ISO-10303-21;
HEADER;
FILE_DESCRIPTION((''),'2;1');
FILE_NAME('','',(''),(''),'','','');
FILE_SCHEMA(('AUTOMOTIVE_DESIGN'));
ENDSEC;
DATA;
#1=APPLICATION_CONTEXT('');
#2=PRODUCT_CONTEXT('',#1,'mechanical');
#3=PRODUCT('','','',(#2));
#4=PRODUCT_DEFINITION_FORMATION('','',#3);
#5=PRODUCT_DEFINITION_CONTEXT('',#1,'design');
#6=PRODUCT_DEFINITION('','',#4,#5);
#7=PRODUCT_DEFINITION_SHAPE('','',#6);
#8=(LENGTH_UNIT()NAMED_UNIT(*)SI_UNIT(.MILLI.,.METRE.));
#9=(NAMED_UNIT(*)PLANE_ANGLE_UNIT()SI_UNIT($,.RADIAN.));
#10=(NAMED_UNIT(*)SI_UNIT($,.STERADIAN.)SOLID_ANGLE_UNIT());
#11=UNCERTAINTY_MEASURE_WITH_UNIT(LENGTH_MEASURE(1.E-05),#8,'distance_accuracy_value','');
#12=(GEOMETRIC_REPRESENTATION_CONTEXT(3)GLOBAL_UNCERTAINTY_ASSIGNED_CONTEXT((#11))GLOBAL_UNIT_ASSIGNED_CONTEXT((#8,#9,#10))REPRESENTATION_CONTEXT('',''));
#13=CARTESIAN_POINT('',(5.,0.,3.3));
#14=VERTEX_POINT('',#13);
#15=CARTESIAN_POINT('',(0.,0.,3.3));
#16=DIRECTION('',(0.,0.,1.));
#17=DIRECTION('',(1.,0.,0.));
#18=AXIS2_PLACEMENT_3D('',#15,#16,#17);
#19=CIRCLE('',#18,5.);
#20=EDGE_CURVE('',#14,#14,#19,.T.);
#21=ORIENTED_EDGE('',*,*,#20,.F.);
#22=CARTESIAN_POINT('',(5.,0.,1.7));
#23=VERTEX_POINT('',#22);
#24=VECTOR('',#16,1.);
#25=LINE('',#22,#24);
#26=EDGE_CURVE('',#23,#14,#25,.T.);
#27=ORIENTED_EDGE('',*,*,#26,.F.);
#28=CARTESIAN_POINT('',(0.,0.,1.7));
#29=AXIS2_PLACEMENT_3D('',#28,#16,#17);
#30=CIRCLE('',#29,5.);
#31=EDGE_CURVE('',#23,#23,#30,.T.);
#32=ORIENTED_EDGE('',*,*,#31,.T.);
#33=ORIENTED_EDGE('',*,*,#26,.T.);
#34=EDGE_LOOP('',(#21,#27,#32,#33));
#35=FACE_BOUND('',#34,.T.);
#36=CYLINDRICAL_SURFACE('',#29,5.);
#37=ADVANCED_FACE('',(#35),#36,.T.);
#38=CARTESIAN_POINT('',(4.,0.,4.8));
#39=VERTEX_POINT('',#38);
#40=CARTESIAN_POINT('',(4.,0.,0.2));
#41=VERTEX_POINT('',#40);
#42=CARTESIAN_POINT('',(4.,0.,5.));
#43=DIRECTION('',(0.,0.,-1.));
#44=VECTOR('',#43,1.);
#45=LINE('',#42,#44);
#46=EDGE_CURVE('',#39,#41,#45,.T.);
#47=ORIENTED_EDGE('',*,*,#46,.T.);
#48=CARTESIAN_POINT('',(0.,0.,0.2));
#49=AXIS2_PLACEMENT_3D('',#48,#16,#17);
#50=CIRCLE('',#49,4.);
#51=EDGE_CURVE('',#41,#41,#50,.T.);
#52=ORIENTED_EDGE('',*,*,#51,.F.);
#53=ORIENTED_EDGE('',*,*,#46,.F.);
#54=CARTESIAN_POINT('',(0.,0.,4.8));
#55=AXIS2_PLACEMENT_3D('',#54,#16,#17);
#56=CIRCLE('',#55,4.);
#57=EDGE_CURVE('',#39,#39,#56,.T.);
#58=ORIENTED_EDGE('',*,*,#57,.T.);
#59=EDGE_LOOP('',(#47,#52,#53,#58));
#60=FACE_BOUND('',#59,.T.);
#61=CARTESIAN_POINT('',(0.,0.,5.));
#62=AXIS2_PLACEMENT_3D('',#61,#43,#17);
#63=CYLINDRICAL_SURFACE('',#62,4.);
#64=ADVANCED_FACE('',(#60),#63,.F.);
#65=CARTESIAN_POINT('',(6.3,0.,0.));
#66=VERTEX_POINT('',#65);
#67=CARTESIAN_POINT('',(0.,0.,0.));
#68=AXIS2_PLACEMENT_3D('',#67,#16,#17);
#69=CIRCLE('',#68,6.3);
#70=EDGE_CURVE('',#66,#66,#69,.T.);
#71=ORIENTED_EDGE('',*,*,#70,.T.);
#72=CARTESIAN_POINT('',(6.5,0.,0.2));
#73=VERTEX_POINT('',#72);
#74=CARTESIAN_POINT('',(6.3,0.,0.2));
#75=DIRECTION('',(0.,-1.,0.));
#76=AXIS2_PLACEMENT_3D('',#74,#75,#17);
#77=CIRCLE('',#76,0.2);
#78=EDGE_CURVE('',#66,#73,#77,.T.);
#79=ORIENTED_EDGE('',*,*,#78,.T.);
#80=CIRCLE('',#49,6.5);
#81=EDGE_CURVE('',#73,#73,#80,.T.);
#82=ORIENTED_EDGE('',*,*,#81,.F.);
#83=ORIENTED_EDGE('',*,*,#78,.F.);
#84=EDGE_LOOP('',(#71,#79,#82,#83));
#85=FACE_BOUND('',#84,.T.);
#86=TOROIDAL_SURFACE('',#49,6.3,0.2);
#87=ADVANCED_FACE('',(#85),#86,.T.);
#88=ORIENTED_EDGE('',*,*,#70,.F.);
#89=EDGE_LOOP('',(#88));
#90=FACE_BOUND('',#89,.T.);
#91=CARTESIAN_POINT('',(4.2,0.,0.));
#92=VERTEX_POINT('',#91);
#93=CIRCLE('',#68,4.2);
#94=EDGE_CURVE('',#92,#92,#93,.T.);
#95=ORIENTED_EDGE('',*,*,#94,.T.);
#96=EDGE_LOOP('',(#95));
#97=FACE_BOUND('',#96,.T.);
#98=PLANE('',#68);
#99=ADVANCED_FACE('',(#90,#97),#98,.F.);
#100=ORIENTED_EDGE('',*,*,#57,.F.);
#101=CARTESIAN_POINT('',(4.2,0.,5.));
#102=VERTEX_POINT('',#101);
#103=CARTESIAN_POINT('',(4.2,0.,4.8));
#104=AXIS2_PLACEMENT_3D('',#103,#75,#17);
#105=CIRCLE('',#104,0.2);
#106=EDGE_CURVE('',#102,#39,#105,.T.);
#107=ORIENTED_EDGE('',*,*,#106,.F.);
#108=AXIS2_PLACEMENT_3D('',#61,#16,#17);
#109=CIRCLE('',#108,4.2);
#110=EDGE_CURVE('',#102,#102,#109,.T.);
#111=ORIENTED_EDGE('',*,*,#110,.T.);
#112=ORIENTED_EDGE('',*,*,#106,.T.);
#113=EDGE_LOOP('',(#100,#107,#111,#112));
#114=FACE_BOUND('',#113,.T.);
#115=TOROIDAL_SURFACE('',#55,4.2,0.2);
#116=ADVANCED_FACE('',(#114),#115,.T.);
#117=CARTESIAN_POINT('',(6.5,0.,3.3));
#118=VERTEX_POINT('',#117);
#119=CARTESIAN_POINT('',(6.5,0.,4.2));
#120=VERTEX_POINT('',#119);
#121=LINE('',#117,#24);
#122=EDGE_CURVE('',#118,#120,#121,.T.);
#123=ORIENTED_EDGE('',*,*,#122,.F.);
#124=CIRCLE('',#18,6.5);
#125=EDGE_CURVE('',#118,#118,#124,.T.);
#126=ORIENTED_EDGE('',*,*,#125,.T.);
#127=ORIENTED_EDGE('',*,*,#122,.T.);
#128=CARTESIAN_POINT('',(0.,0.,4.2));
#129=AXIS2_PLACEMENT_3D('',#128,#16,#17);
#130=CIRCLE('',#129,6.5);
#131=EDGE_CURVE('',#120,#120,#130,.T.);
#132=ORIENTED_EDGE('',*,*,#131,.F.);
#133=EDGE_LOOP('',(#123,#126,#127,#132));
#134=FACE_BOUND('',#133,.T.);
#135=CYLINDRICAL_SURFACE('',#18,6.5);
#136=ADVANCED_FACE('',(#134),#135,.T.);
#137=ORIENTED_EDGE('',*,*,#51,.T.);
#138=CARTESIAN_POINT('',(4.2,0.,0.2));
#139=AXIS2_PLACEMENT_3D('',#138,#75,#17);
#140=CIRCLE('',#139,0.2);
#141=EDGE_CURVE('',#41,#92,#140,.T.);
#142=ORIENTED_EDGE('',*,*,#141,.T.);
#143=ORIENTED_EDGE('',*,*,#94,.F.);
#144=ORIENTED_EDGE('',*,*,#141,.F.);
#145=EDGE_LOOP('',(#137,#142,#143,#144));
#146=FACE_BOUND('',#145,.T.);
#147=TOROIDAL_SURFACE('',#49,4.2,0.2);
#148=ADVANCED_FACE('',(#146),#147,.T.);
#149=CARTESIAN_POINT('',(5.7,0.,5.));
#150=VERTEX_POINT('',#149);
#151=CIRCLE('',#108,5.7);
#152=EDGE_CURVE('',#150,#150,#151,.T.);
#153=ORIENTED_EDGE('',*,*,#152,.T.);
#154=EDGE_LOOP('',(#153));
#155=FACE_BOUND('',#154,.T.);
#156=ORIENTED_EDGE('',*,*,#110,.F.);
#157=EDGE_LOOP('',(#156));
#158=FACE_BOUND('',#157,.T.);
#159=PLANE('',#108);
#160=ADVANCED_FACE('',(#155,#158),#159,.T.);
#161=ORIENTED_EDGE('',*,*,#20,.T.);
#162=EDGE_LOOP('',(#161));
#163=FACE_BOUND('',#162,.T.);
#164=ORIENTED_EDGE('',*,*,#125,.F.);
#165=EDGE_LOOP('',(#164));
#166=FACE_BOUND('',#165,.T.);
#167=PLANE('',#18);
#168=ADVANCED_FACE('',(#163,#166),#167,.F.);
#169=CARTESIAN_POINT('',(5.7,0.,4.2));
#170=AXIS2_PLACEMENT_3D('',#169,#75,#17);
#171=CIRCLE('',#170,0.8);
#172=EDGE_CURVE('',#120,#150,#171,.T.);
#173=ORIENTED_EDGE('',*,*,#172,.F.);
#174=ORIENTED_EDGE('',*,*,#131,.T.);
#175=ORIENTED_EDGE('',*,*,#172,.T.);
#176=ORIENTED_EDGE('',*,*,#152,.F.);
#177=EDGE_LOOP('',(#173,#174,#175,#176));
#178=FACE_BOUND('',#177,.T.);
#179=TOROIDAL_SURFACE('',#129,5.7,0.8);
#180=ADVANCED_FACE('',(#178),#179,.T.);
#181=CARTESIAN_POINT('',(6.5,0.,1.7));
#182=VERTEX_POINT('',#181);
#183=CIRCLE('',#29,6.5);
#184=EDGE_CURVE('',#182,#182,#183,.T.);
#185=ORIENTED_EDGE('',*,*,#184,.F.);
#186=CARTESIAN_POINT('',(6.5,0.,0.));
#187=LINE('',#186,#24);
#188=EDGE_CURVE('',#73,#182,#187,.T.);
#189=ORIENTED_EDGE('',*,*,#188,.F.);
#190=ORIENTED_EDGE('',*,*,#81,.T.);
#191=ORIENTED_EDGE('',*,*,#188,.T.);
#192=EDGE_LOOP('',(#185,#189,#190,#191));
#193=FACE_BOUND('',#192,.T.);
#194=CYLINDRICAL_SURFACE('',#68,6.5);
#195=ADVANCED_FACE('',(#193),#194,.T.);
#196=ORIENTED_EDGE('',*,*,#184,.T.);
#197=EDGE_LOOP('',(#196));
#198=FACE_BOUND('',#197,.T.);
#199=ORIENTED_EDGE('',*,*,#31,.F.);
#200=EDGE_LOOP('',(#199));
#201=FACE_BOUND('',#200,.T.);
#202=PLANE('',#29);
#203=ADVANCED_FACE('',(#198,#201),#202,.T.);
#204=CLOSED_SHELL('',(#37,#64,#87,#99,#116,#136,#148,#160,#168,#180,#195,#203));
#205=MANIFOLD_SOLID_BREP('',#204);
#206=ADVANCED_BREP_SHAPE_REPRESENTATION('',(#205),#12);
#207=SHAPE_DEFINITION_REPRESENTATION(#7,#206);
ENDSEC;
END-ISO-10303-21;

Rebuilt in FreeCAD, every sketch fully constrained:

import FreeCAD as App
import Part
import Sketcher
from FreeCAD import Vector
Q = App.Units.Quantity


def edges_at(feature, points):
    """Names of the edges that pass closest to the given points."""
    edges = feature.Shape.Edges
    near = lambda p: min(range(len(edges)), key=lambda i: edges[i].distToShape(Part.Vertex(*p))[0])
    return sorted({f"Edge{near(p) + 1}" for p in points})

doc = App.newDocument("Part")
body = doc.addObject("PartDesign::Body", "Body")

# Sketch on XZ plane
sketch1 = body.newObject("Sketcher::SketchObject", "Sketch")
sketch1.AttachmentSupport = (doc.getObject("XZ_Plane"), [""])
sketch1.MapMode = "FlatFace"
sketch1.addGeometry([
    Part.LineSegment(Vector(4, 5, 0), Vector(4, 0, 0)),  # 0
    Part.LineSegment(Vector(4, 0, 0), Vector(6.5, 0, 0)),  # 1
    Part.LineSegment(Vector(6.5, 0, 0), Vector(6.5, 1.7, 0)),  # 2
    Part.LineSegment(Vector(6.5, 1.7, 0), Vector(5, 1.7, 0)),  # 3
    Part.LineSegment(Vector(5, 1.7, 0), Vector(5, 3.3, 0)),  # 4
    Part.LineSegment(Vector(5, 3.3, 0), Vector(6.5, 3.3, 0)),  # 5
    Part.LineSegment(Vector(6.5, 3.3, 0), Vector(6.5, 5, 0)),  # 6
    Part.LineSegment(Vector(6.5, 5, 0), Vector(4, 5, 0)),  # 7
], False)
sketch1.addConstraint([
    Sketcher.Constraint("Coincident", 0, 2, 1, 1),
    Sketcher.Constraint("Coincident", 1, 2, 2, 1),
    Sketcher.Constraint("Coincident", 2, 2, 3, 1),
    Sketcher.Constraint("Coincident", 3, 2, 4, 1),
    Sketcher.Constraint("Coincident", 4, 2, 5, 1),
    Sketcher.Constraint("Coincident", 5, 2, 6, 1),
    Sketcher.Constraint("Coincident", 6, 2, 7, 1),
    Sketcher.Constraint("Coincident", 7, 2, 0, 1),
    Sketcher.Constraint("Vertical", 0),
    Sketcher.Constraint("Horizontal", 1),
    Sketcher.Constraint("Vertical", 2),
    Sketcher.Constraint("Horizontal", 3),
    Sketcher.Constraint("Vertical", 4),
    Sketcher.Constraint("Horizontal", 5),
    Sketcher.Constraint("Vertical", 6),
    Sketcher.Constraint("Horizontal", 7),
    Sketcher.Constraint("PointOnObject", 0, 2, -1),
    Sketcher.Constraint("Vertical", 2, 2, 5, 2),
    Sketcher.Constraint("Equal", 2, 6),
    Sketcher.Constraint("DistanceY", 0, 2, 0, 1, Q("5 mm")),
    Sketcher.Constraint("DistanceX", 1, 1, 1, 2, Q("2.5 mm")),
    Sketcher.Constraint("DistanceX", 3, 2, 3, 1, Q("1.5 mm")),
    Sketcher.Constraint("DistanceY", 2, 1, 2, 2, Q("1.7 mm")),
    Sketcher.Constraint("DistanceX", -1, 1, 0, 2, Q("4 mm")),
])
revolution = body.newObject("PartDesign::Revolution", "Revolution")
revolution.Profile = sketch1
revolution.ReferenceAxis = (sketch1, ["V_Axis"])
revolution.Angle = 360
doc.recompute()

fillet = body.newObject("PartDesign::Fillet", "Fillet")
fillet.Base = (revolution, edges_at(revolution, [(-6.5, 0, 5)]))
fillet.Radius = 0.8
doc.recompute()

fillet2 = body.newObject("PartDesign::Fillet", "Fillet001")
fillet2.Base = (fillet, edges_at(fillet, [(-4, 0, 5), (-4, 0, 0), (-6.5, 0, 0)]))
fillet2.Radius = 0.2

doc.recompute()
